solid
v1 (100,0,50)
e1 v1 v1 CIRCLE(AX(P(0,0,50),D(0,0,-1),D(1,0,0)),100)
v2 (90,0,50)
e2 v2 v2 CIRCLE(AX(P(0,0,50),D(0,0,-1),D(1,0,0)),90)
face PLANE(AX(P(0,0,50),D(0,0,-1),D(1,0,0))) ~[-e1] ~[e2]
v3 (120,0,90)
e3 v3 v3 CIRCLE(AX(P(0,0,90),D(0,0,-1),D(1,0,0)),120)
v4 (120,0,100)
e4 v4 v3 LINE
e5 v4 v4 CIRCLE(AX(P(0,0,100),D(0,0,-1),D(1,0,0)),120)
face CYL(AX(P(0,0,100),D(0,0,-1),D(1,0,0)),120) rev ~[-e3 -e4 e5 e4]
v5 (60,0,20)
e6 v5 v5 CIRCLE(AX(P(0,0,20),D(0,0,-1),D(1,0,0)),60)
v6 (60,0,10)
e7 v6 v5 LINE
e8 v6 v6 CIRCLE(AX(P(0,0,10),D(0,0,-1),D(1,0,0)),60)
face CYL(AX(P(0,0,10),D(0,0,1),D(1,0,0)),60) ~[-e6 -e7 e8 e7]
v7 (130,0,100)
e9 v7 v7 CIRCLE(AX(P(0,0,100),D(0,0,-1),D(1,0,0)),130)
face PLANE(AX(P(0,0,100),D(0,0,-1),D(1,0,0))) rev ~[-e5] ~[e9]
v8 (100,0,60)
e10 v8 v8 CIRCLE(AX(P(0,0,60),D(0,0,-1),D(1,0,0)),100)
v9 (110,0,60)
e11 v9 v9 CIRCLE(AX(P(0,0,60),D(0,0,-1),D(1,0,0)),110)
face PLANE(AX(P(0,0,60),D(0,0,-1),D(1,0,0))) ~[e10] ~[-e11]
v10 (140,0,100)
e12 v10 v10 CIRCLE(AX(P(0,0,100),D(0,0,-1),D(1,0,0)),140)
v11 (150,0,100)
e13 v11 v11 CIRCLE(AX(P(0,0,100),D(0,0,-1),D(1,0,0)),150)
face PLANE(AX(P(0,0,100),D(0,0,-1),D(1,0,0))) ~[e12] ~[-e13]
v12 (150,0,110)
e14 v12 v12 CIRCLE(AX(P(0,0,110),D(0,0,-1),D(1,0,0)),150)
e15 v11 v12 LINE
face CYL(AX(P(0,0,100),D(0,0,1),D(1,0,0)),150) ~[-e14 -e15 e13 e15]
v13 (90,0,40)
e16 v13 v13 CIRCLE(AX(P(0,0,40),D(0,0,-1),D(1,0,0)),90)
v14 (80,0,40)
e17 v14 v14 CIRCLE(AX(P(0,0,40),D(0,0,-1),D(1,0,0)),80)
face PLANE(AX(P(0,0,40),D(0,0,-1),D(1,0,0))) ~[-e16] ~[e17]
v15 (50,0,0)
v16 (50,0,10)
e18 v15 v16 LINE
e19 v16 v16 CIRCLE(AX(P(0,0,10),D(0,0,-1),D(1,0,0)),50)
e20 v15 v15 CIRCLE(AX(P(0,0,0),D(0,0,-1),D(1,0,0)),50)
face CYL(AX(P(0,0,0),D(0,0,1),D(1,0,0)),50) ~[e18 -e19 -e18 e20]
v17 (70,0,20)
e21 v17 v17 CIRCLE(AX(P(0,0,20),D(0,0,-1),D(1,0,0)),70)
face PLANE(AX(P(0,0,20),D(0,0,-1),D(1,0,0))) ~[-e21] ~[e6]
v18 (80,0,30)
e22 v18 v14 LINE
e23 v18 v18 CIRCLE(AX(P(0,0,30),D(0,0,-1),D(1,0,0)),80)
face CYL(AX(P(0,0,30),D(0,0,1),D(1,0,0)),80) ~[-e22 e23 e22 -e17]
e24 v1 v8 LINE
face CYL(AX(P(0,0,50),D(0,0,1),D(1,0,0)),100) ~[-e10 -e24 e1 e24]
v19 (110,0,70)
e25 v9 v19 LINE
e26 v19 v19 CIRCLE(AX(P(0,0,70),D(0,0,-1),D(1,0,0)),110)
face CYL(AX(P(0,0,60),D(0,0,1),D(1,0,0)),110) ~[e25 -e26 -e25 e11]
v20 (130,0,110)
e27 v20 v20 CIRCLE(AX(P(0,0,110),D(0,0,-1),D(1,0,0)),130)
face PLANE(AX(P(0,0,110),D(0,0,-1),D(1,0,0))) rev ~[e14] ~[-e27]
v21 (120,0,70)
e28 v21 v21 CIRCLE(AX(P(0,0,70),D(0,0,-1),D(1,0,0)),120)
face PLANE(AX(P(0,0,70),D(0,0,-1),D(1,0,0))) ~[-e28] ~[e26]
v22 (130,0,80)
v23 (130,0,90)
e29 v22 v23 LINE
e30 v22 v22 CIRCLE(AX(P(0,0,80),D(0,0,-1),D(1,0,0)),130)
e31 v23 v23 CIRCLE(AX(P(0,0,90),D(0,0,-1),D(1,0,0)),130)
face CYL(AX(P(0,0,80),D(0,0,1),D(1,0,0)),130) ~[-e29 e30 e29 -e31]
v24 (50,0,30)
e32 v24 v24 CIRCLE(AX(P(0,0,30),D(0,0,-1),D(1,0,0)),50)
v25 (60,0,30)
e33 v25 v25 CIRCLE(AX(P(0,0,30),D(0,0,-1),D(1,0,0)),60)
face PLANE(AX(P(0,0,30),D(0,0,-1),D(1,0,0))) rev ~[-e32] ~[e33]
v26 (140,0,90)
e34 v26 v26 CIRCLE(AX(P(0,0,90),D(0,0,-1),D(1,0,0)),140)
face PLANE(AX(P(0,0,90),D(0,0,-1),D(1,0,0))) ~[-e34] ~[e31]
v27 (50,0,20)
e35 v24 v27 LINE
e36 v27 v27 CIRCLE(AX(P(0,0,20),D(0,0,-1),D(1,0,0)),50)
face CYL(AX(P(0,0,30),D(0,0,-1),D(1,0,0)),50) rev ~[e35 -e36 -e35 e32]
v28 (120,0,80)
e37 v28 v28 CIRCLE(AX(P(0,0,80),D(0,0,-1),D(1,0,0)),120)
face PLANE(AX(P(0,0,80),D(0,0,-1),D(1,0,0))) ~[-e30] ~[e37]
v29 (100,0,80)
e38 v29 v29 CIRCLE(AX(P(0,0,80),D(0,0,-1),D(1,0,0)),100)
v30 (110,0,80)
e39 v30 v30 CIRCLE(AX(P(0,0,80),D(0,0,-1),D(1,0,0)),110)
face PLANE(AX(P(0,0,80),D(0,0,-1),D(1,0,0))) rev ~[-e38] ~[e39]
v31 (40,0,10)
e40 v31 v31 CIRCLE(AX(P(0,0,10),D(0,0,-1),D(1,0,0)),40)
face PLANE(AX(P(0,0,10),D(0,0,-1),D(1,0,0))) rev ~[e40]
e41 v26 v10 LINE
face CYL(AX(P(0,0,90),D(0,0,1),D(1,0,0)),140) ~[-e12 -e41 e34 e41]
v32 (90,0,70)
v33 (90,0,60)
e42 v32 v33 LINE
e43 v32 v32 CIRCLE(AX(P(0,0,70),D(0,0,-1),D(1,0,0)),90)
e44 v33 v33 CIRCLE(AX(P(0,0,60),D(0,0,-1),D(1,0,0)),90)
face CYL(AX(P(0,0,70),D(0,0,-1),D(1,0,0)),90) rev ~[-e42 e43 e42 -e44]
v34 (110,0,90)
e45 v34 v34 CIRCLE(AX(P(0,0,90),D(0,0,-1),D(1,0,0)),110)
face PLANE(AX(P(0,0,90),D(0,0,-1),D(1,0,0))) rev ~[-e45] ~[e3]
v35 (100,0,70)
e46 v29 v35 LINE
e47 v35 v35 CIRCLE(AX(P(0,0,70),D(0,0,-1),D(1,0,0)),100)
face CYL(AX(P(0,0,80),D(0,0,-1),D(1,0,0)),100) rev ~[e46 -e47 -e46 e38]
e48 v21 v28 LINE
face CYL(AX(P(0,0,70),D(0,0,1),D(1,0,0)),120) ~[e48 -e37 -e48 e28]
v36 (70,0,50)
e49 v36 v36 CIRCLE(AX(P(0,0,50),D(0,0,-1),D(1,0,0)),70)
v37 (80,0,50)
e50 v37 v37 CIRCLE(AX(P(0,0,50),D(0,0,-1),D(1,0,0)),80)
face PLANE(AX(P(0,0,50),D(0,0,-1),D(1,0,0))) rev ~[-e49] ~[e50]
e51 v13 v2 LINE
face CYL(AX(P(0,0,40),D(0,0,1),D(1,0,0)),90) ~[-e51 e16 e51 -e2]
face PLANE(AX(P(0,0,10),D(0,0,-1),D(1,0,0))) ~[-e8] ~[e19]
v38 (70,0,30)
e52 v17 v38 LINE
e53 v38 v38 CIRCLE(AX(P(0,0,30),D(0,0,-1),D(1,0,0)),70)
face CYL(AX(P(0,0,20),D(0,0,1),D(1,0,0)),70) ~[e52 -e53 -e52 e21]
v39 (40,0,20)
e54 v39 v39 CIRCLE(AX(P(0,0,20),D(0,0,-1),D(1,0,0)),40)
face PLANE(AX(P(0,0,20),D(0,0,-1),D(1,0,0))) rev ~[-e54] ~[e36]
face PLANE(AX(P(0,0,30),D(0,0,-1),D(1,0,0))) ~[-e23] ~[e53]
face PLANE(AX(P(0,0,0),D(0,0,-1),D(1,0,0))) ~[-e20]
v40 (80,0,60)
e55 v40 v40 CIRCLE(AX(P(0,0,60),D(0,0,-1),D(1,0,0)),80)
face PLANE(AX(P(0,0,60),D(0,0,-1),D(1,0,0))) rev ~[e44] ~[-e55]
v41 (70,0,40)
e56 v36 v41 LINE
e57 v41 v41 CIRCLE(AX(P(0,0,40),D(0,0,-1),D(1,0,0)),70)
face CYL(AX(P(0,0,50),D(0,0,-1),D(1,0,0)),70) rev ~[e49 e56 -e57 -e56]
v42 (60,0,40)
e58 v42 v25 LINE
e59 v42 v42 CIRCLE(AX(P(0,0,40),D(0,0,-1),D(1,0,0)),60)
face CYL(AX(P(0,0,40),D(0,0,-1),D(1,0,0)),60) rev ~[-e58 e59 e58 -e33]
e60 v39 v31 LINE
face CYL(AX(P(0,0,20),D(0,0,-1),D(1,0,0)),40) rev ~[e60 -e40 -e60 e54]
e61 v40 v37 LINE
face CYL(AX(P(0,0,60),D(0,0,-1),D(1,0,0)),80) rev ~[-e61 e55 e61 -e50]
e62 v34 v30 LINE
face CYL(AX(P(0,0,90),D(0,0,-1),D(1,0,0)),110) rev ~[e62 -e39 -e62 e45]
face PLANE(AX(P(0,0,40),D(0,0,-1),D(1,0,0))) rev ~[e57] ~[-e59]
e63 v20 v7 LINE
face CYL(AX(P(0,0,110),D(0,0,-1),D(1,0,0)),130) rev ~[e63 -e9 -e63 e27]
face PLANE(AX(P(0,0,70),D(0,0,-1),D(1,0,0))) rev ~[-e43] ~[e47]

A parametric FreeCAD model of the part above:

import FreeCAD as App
import Part
import Sketcher
Q = App.Units.Quantity


def add_polygon(sketch, points):
    """Adds a closed chain of lines whose ends are joined by coincident constraints."""
    first, n = sketch.GeometryCount, len(points)
    for a, b in zip(points, points[1:] + points[:1]):
        sketch.addGeometry(Part.LineSegment(App.Vector(*a, 0), App.Vector(*b, 0)), False)
    for i in range(n):
        sketch.addConstraint(Sketcher.Constraint("Coincident", first + i, 2, first + (i + 1) % n, 1))

doc = App.newDocument("Part")
params = doc.addObject("Spreadsheet::Sheet", "Params")
for row, (alias, value) in enumerate([
    ("sketch1_width", "50 mm"),
    ("sketch1_width2", "10 mm"),
    ("revolution_angle", "360 deg"),
], start=1):
    params.set(f"A{row}", alias)
    params.set(f"B{row}", "=" + value)
    params.setAlias(f"B{row}", alias)

body = doc.addObject("PartDesign::Body", "Body")

# Sketch on XZ plane
sketch1 = doc.addObject("Sketcher::SketchObject", "Sketch")
body.addObject(sketch1)
sketch1.AttachmentSupport = (doc.XZ_Plane, [""])
sketch1.MapMode = "FlatFace"
add_polygon(sketch1, [(0, 10), (0, 0), (50, 0), (50, 10), (60, 10), (60, 20), (70, 20), (70, 30), (80, 30), (80, 40), (90, 40), (90, 50), (100, 50), (100, 60), (110, 60), (110, 70), (120, 70), (120, 80), (130, 80), (130, 90), (140, 90), (140, 100), (150, 100), (150, 110), (130, 110), (130, 100), (120, 100), (120, 90), (110, 90), (110, 80), (100, 80), (100, 70), (90, 70), (90, 60), (80, 60), (80, 50), (70, 50), (70, 40), (60, 40), (60, 30), (50, 30), (50, 20), (40, 20), (40, 10)])  # lines 0-43
sketch1.addConstraint([
    Sketcher.Constraint("Vertical", 0),
    Sketcher.Constraint("Horizontal", 1),
    Sketcher.Constraint("Vertical", 2),
    Sketcher.Constraint("Horizontal", 3),
    Sketcher.Constraint("Vertical", 4),
    Sketcher.Constraint("Horizontal", 5),
    Sketcher.Constraint("Vertical", 6),
    Sketcher.Constraint("Horizontal", 7),
    Sketcher.Constraint("Vertical", 8),
    Sketcher.Constraint("Horizontal", 9),
    Sketcher.Constraint("Vertical", 10),
    Sketcher.Constraint("Horizontal", 11),
    Sketcher.Constraint("Vertical", 12),
    Sketcher.Constraint("Horizontal", 13),
    Sketcher.Constraint("Vertical", 14),
    Sketcher.Constraint("Horizontal", 15),
    Sketcher.Constraint("Vertical", 16),
    Sketcher.Constraint("Horizontal", 17),
    Sketcher.Constraint("Vertical", 18),
    Sketcher.Constraint("Horizontal", 19),
    Sketcher.Constraint("Vertical", 20),
    Sketcher.Constraint("Horizontal", 21),
    Sketcher.Constraint("Vertical", 22),
    Sketcher.Constraint("Horizontal", 23),
    Sketcher.Constraint("Vertical", 24),
    Sketcher.Constraint("Horizontal", 25),
    Sketcher.Constraint("Vertical", 26),
    Sketcher.Constraint("Horizontal", 27),
    Sketcher.Constraint("Vertical", 28),
    Sketcher.Constraint("Horizontal", 29),
    Sketcher.Constraint("Vertical", 30),
    Sketcher.Constraint("Horizontal", 31),
    Sketcher.Constraint("Vertical", 32),
    Sketcher.Constraint("Horizontal", 33),
    Sketcher.Constraint("Vertical", 34),
    Sketcher.Constraint("Horizontal", 35),
    Sketcher.Constraint("Vertical", 36),
    Sketcher.Constraint("Horizontal", 37),
    Sketcher.Constraint("Vertical", 38),
    Sketcher.Constraint("Horizontal", 39),
    Sketcher.Constraint("Vertical", 40),
    Sketcher.Constraint("Horizontal", 41),
    Sketcher.Constraint("Vertical", 42),
    Sketcher.Constraint("Horizontal", 43),
    Sketcher.Constraint("Coincident", 0, 2, -1, 1),
    Sketcher.Constraint("Horizontal", 21, 2, 24, 2),
    Sketcher.Constraint("Horizontal", 19, 2, 26, 2),
    Sketcher.Constraint("Horizontal", 17, 2, 28, 2),
    Sketcher.Constraint("Horizontal", 15, 2, 30, 2),
    Sketcher.Constraint("Horizontal", 13, 2, 32, 2),
    Sketcher.Constraint("Horizontal", 11, 2, 34, 2),
    Sketcher.Constraint("Horizontal", 9, 2, 36, 2),
    Sketcher.Constraint("Horizontal", 7, 2, 38, 2),
    Sketcher.Constraint("Horizontal", 5, 2, 40, 2),
    Sketcher.Constraint("Horizontal", 3, 2, 42, 2),
    Sketcher.Constraint("Vertical", 18, 2, 23, 2),
    Sketcher.Constraint("Vertical", 16, 2, 25, 2),
    Sketcher.Constraint("Vertical", 14, 2, 27, 2),
    Sketcher.Constraint("Vertical", 12, 2, 29, 2),
    Sketcher.Constraint("Vertical", 10, 2, 31, 2),
    Sketcher.Constraint("Vertical", 8, 2, 33, 2),
    Sketcher.Constraint("Vertical", 6, 2, 35, 2),
    Sketcher.Constraint("Vertical", 4, 2, 37, 2),
    Sketcher.Constraint("Vertical", 2, 2, 39, 2),
    Sketcher.Constraint("Equal", 3, 5),
    Sketcher.Constraint("Equal", 5, 7),
    Sketcher.Constraint("Equal", 7, 9),
    Sketcher.Constraint("Equal", 9, 11),
    Sketcher.Constraint("Equal", 11, 13),
    Sketcher.Constraint("Equal", 13, 15),
    Sketcher.Constraint("Equal", 15, 17),
    Sketcher.Constraint("Equal", 17, 19),
    Sketcher.Constraint("Equal", 19, 21),
    Sketcher.Constraint("Equal", 39, 41),
    Sketcher.Constraint("Equal", 41, 0),
    Sketcher.Constraint("Equal", 2, 4),
    Sketcher.Constraint("Equal", 4, 6),
    Sketcher.Constraint("Equal", 6, 8),
    Sketcher.Constraint("Equal", 8, 10),
    Sketcher.Constraint("Equal", 10, 12),
    Sketcher.Constraint("Equal", 12, 14),
    Sketcher.Constraint("Equal", 14, 16),
    Sketcher.Constraint("Equal", 16, 18),
    Sketcher.Constraint("Equal", 18, 20),
    Sketcher.Constraint("Equal", 20, 22),
    Sketcher.Constraint("DistanceX", 1, 1, 1, 2, Q("50 mm")),
    Sketcher.Constraint("DistanceX", 3, 1, 3, 2, Q("10 mm")),
])
sketch1.setExpression("Constraints[129]", "Params.sketch1_width")
sketch1.setExpression("Constraints[130]", "Params.sketch1_width2")
revolution = doc.addObject("PartDesign::Revolution", "Revolution")
body.addObject(revolution)
revolution.Profile = sketch1
revolution.ReferenceAxis = (sketch1, ["V_Axis"])
revolution.setExpression("Angle", "Params.revolution_angle")

doc.recompute()
